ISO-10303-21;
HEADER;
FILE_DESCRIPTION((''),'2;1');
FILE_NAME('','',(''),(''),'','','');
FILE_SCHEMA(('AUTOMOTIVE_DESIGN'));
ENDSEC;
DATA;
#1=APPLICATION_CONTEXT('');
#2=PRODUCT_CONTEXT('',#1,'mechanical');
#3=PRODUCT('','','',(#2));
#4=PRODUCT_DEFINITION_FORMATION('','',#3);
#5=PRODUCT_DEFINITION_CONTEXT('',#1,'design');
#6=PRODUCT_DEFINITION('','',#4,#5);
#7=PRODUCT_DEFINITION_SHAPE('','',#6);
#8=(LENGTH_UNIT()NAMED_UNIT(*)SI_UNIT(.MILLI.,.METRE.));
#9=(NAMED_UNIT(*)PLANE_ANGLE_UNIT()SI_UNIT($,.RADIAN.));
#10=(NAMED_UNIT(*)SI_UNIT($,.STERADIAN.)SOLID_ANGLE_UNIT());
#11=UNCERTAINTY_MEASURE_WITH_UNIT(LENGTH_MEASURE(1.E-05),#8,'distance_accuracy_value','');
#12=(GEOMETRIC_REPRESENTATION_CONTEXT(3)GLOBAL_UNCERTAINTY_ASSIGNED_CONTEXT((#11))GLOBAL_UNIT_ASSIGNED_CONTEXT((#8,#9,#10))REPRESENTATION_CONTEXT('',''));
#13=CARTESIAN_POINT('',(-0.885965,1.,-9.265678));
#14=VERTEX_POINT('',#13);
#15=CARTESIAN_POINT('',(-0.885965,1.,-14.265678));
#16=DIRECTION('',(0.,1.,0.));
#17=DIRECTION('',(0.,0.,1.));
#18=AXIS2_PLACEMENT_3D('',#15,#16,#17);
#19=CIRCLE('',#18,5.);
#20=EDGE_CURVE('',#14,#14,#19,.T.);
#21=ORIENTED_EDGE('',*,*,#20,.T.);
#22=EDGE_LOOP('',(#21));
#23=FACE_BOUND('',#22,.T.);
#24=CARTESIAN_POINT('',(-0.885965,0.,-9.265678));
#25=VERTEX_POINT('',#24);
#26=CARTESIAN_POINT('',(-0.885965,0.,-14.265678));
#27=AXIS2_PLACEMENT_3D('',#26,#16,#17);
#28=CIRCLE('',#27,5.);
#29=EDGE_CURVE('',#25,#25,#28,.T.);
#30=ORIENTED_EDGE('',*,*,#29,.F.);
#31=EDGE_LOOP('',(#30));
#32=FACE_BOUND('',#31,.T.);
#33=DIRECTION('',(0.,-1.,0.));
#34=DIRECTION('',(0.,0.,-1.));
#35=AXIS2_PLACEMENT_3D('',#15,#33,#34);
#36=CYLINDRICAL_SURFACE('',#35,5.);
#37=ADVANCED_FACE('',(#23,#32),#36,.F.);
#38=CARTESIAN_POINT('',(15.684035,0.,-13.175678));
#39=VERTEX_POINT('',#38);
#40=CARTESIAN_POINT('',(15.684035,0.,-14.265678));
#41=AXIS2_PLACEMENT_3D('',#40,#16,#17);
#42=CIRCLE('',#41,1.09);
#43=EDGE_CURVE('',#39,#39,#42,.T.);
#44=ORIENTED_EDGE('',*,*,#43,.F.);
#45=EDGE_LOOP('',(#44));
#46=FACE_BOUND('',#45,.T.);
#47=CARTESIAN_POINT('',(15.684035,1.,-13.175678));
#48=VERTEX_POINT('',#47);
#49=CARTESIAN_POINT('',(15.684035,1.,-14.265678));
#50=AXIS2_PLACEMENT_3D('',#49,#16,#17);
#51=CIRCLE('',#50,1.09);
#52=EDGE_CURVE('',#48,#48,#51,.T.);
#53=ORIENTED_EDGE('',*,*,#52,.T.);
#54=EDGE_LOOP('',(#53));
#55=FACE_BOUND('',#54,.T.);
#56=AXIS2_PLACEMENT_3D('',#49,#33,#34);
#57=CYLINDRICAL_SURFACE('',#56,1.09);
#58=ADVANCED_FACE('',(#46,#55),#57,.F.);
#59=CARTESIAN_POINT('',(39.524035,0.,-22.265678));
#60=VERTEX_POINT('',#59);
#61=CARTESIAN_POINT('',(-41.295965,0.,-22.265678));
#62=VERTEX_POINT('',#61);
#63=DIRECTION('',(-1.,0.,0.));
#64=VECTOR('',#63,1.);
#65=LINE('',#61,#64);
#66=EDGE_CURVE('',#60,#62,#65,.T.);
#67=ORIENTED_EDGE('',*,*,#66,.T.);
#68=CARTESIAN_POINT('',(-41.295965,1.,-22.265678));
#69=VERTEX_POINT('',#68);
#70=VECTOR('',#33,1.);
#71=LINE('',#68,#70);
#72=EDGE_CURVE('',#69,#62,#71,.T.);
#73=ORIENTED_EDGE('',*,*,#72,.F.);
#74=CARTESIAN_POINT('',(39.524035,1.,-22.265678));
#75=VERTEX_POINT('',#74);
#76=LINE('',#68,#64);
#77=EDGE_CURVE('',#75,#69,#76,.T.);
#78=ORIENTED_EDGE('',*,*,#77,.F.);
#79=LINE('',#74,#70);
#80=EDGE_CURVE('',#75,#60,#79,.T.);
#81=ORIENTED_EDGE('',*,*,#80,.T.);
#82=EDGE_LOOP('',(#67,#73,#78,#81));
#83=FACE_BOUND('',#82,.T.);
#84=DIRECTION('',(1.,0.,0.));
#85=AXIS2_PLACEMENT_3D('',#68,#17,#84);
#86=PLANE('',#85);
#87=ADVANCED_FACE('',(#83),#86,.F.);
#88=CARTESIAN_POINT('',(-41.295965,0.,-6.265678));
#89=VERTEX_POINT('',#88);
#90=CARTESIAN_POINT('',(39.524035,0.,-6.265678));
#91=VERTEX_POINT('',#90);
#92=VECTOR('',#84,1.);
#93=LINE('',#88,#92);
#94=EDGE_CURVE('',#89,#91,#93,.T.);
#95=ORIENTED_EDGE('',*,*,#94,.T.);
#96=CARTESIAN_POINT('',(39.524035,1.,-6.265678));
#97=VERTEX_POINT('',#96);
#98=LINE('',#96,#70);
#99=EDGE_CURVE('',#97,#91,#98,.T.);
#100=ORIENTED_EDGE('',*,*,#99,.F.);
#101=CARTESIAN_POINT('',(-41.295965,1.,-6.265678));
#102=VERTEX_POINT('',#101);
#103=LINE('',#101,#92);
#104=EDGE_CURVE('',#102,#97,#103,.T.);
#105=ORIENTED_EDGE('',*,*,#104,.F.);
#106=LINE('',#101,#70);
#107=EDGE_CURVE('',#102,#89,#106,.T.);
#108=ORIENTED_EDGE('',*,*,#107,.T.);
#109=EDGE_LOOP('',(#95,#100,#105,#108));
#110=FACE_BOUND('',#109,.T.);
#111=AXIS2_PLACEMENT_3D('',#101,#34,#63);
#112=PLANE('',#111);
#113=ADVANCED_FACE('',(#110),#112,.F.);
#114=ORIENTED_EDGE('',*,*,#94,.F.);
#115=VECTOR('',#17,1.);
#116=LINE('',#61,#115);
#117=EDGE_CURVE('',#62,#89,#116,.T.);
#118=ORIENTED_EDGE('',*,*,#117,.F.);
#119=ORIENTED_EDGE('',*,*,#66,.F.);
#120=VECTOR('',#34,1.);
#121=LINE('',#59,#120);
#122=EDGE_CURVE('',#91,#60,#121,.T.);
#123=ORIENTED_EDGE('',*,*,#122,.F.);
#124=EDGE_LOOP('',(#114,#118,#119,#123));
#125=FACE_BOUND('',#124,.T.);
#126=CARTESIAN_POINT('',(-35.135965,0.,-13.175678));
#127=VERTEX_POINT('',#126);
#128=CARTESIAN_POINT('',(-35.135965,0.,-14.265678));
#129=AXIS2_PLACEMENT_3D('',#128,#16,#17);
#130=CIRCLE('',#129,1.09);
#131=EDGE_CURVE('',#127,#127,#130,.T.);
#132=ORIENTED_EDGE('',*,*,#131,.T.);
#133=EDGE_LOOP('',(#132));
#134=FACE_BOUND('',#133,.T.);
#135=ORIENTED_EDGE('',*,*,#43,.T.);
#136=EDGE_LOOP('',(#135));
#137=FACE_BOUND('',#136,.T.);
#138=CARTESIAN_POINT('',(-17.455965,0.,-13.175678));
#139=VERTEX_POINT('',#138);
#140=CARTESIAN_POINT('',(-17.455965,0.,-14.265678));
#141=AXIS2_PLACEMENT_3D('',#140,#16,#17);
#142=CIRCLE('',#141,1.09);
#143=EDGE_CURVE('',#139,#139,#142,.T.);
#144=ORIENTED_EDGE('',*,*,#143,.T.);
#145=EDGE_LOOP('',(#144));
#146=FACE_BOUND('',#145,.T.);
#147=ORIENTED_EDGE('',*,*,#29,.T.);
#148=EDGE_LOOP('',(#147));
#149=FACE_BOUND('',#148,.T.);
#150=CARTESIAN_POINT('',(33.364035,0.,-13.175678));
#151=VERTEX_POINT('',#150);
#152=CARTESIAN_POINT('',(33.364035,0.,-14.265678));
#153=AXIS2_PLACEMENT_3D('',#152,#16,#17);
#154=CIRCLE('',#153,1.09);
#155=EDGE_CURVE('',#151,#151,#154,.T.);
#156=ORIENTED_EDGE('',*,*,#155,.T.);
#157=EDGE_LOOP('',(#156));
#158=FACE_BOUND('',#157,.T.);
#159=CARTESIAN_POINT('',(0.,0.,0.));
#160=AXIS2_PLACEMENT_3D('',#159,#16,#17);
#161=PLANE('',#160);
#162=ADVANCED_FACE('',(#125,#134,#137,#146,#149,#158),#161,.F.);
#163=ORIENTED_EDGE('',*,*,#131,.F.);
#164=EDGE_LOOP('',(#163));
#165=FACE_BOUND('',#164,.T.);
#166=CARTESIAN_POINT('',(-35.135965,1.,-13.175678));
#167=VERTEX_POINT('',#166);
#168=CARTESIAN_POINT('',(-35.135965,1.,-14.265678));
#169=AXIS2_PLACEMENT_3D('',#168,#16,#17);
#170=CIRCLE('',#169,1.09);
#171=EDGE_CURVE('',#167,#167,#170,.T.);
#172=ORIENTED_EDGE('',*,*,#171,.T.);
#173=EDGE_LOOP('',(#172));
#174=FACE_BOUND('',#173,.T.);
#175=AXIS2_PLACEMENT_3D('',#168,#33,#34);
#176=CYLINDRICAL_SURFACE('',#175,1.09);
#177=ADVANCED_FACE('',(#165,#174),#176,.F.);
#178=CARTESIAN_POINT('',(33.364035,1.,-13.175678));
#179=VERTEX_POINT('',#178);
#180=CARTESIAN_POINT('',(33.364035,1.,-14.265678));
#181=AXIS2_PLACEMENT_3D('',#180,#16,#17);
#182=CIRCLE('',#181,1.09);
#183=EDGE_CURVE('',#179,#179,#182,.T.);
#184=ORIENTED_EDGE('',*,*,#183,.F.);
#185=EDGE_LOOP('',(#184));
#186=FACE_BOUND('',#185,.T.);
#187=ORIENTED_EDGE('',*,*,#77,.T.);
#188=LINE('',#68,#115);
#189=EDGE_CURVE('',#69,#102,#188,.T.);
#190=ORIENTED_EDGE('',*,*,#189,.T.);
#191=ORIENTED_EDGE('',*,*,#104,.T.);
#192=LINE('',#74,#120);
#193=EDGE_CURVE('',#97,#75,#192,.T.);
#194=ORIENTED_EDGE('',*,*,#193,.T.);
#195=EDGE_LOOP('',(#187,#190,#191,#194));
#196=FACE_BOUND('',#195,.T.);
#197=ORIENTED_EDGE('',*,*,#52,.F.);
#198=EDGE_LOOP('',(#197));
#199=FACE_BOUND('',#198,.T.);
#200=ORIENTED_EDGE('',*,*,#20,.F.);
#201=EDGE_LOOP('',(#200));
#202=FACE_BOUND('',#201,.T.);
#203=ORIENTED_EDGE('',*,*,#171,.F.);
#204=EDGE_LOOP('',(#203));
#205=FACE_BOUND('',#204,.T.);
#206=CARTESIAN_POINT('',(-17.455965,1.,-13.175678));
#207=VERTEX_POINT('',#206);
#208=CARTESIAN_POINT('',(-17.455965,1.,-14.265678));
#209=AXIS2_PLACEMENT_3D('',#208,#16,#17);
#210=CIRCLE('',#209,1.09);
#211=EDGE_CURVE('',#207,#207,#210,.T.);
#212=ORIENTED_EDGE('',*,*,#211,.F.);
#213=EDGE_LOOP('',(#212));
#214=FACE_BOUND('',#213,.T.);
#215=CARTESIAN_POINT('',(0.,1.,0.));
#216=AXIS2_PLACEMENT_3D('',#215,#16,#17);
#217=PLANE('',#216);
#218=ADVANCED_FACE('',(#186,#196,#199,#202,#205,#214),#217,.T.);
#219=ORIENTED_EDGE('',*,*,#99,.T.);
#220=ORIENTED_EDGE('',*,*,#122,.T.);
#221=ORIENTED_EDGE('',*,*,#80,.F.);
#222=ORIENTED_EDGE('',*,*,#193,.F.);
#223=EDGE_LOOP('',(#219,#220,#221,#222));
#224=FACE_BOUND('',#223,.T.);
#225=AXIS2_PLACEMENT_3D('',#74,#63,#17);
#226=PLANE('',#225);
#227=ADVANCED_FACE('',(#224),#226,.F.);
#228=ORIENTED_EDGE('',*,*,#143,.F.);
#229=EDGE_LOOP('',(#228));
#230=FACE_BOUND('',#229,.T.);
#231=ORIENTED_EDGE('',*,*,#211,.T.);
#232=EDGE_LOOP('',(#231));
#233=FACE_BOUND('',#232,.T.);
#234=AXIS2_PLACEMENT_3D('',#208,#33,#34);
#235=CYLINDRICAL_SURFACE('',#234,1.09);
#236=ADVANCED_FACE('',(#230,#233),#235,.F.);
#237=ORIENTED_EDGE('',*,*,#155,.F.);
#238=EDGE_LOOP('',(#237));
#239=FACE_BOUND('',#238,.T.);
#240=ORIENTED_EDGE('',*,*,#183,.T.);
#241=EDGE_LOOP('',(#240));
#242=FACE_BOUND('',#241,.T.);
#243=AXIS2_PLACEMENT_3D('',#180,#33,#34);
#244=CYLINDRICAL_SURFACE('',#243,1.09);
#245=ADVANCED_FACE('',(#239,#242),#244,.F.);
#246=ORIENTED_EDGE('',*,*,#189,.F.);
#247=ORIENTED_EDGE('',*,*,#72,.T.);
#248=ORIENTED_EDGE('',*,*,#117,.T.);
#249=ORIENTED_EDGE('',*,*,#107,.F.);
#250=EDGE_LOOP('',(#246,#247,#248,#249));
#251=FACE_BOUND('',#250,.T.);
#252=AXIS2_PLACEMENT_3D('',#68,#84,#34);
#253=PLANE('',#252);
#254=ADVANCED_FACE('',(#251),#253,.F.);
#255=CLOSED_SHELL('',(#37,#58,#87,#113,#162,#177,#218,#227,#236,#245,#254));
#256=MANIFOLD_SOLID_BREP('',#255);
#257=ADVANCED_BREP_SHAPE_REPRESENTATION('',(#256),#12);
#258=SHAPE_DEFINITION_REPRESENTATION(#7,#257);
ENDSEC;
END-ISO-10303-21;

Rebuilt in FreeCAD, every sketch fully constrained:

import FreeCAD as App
import Part
import Sketcher

V = App.Vector

doc = App.newDocument("Part")
params = doc.addObject("Spreadsheet::Sheet", "Params")
for row, (alias, value) in enumerate([
    ("sketch1_diameter", "10 mm"),
    ("sketch1_diameter2", "2.18 mm"),
    ("sketch1_height", "16 mm"),
    ("sketch1_width", "80.82 mm"),
    ("pad1_length", "1 mm"),
], start=1):
    params.set(f"A{row}", alias)
    params.set(f"B{row}", "=" + value)
    params.setAlias(f"B{row}", alias)

body = doc.addObject("PartDesign::Body", "Body")

sketch1 = doc.addObject("Sketcher::SketchObject", "Sketch")
body.addObject(sketch1)
sketch1.AttachmentSupport = (doc.XZ_Plane, [""])
sketch1.MapMode = "FlatFace"
sketch1.addGeometry([
    Part.LineSegment(V(-41.3, -22.3, 0), V(-41.3, -6.3, 0)),
    Part.LineSegment(V(-41.3, -6.3, 0), V(39.5, -6.3, 0)),
    Part.LineSegment(V(39.5, -6.3, 0), V(39.5, -22.3, 0)),
    Part.LineSegment(V(39.5, -22.3, 0), V(-41.3, -22.3, 0)),
    Part.Circle(V(-35.1, -14.3, 0), V(0, 0, 1), 1.1),
    Part.Circle(V(-17.5, -14.3, 0), V(0, 0, 1), 1.1),
    Part.Circle(V(-0.9, -14.3, 0), V(0, 0, 1), 5),
    Part.Circle(V(15.7, -14.3, 0), V(0, 0, 1), 1.1),
    Part.Circle(V(33.4, -14.3, 0), V(0, 0, 1), 1.1),
], False)
sketch1.addConstraint([
    Sketcher.Constraint("Coincident", 0, 2, 1, 1),
    Sketcher.Constraint("Coincident", 1, 2, 2, 1),
    Sketcher.Constraint("Coincident", 2, 2, 3, 1),
    Sketcher.Constraint("Coincident", 3, 2, 0, 1),
    Sketcher.Constraint("Vertical", 0),
    Sketcher.Constraint("Horizontal", 1),
    Sketcher.Constraint("Vertical", 2),
    Sketcher.Constraint("Horizontal", 3),
    Sketcher.Constraint("Equal", 4, 5),
    Sketcher.Constraint("Equal", 5, 7),
    Sketcher.Constraint("Equal", 7, 8),
    Sketcher.Constraint("Horizontal", 4, 3, 5, 3),
    Sketcher.Constraint("Horizontal", 5, 3, 6, 3),
    Sketcher.Constraint("Horizontal", 6, 3, 7, 3),
    Sketcher.Constraint("Horizontal", 7, 3, 8, 3),
    Sketcher.Constraint("Diameter", 6, 10.0),
    Sketcher.Constraint("Diameter", 4, 2.18),
    Sketcher.Constraint("DistanceY", 0, 1, 0, 2, 16.0),
    Sketcher.Constraint("DistanceY", 4, 3, 0, 2, 8.0),
    Sketcher.Constraint("DistanceX", 1, 1, 1, 2, 80.82),
    Sketcher.Constraint("DistanceX", 4, 3, 8, 3, 68.5),
    Sketcher.Constraint("DistanceX", 4, 3, 5, 3, 17.68),
    Sketcher.Constraint("DistanceX", 5, 3, 6, 3, 16.57),
    Sketcher.Constraint("DistanceX", 6, 3, 7, 3, 16.57),
    Sketcher.Constraint("DistanceX", 0, 2, 4, 3, 6.16),
    Sketcher.Constraint("DistanceX", 4, 3, -1, 1, 35.135965),
    Sketcher.Constraint("DistanceY", 4, 3, -1, 1, 14.265678),
])
sketch1.setExpression("Constraints[15]", "Params.sketch1_diameter")
sketch1.setExpression("Constraints[16]", "Params.sketch1_diameter2")
sketch1.setExpression("Constraints[17]", "Params.sketch1_height")
sketch1.setExpression("Constraints[19]", "Params.sketch1_width")
pad1 = doc.addObject("PartDesign::Pad", "Pad")
body.addObject(pad1)
pad1.Profile = sketch1
pad1.setExpression("Length", "Params.pad1_length")
pad1.Reversed = True

doc.recompute()
